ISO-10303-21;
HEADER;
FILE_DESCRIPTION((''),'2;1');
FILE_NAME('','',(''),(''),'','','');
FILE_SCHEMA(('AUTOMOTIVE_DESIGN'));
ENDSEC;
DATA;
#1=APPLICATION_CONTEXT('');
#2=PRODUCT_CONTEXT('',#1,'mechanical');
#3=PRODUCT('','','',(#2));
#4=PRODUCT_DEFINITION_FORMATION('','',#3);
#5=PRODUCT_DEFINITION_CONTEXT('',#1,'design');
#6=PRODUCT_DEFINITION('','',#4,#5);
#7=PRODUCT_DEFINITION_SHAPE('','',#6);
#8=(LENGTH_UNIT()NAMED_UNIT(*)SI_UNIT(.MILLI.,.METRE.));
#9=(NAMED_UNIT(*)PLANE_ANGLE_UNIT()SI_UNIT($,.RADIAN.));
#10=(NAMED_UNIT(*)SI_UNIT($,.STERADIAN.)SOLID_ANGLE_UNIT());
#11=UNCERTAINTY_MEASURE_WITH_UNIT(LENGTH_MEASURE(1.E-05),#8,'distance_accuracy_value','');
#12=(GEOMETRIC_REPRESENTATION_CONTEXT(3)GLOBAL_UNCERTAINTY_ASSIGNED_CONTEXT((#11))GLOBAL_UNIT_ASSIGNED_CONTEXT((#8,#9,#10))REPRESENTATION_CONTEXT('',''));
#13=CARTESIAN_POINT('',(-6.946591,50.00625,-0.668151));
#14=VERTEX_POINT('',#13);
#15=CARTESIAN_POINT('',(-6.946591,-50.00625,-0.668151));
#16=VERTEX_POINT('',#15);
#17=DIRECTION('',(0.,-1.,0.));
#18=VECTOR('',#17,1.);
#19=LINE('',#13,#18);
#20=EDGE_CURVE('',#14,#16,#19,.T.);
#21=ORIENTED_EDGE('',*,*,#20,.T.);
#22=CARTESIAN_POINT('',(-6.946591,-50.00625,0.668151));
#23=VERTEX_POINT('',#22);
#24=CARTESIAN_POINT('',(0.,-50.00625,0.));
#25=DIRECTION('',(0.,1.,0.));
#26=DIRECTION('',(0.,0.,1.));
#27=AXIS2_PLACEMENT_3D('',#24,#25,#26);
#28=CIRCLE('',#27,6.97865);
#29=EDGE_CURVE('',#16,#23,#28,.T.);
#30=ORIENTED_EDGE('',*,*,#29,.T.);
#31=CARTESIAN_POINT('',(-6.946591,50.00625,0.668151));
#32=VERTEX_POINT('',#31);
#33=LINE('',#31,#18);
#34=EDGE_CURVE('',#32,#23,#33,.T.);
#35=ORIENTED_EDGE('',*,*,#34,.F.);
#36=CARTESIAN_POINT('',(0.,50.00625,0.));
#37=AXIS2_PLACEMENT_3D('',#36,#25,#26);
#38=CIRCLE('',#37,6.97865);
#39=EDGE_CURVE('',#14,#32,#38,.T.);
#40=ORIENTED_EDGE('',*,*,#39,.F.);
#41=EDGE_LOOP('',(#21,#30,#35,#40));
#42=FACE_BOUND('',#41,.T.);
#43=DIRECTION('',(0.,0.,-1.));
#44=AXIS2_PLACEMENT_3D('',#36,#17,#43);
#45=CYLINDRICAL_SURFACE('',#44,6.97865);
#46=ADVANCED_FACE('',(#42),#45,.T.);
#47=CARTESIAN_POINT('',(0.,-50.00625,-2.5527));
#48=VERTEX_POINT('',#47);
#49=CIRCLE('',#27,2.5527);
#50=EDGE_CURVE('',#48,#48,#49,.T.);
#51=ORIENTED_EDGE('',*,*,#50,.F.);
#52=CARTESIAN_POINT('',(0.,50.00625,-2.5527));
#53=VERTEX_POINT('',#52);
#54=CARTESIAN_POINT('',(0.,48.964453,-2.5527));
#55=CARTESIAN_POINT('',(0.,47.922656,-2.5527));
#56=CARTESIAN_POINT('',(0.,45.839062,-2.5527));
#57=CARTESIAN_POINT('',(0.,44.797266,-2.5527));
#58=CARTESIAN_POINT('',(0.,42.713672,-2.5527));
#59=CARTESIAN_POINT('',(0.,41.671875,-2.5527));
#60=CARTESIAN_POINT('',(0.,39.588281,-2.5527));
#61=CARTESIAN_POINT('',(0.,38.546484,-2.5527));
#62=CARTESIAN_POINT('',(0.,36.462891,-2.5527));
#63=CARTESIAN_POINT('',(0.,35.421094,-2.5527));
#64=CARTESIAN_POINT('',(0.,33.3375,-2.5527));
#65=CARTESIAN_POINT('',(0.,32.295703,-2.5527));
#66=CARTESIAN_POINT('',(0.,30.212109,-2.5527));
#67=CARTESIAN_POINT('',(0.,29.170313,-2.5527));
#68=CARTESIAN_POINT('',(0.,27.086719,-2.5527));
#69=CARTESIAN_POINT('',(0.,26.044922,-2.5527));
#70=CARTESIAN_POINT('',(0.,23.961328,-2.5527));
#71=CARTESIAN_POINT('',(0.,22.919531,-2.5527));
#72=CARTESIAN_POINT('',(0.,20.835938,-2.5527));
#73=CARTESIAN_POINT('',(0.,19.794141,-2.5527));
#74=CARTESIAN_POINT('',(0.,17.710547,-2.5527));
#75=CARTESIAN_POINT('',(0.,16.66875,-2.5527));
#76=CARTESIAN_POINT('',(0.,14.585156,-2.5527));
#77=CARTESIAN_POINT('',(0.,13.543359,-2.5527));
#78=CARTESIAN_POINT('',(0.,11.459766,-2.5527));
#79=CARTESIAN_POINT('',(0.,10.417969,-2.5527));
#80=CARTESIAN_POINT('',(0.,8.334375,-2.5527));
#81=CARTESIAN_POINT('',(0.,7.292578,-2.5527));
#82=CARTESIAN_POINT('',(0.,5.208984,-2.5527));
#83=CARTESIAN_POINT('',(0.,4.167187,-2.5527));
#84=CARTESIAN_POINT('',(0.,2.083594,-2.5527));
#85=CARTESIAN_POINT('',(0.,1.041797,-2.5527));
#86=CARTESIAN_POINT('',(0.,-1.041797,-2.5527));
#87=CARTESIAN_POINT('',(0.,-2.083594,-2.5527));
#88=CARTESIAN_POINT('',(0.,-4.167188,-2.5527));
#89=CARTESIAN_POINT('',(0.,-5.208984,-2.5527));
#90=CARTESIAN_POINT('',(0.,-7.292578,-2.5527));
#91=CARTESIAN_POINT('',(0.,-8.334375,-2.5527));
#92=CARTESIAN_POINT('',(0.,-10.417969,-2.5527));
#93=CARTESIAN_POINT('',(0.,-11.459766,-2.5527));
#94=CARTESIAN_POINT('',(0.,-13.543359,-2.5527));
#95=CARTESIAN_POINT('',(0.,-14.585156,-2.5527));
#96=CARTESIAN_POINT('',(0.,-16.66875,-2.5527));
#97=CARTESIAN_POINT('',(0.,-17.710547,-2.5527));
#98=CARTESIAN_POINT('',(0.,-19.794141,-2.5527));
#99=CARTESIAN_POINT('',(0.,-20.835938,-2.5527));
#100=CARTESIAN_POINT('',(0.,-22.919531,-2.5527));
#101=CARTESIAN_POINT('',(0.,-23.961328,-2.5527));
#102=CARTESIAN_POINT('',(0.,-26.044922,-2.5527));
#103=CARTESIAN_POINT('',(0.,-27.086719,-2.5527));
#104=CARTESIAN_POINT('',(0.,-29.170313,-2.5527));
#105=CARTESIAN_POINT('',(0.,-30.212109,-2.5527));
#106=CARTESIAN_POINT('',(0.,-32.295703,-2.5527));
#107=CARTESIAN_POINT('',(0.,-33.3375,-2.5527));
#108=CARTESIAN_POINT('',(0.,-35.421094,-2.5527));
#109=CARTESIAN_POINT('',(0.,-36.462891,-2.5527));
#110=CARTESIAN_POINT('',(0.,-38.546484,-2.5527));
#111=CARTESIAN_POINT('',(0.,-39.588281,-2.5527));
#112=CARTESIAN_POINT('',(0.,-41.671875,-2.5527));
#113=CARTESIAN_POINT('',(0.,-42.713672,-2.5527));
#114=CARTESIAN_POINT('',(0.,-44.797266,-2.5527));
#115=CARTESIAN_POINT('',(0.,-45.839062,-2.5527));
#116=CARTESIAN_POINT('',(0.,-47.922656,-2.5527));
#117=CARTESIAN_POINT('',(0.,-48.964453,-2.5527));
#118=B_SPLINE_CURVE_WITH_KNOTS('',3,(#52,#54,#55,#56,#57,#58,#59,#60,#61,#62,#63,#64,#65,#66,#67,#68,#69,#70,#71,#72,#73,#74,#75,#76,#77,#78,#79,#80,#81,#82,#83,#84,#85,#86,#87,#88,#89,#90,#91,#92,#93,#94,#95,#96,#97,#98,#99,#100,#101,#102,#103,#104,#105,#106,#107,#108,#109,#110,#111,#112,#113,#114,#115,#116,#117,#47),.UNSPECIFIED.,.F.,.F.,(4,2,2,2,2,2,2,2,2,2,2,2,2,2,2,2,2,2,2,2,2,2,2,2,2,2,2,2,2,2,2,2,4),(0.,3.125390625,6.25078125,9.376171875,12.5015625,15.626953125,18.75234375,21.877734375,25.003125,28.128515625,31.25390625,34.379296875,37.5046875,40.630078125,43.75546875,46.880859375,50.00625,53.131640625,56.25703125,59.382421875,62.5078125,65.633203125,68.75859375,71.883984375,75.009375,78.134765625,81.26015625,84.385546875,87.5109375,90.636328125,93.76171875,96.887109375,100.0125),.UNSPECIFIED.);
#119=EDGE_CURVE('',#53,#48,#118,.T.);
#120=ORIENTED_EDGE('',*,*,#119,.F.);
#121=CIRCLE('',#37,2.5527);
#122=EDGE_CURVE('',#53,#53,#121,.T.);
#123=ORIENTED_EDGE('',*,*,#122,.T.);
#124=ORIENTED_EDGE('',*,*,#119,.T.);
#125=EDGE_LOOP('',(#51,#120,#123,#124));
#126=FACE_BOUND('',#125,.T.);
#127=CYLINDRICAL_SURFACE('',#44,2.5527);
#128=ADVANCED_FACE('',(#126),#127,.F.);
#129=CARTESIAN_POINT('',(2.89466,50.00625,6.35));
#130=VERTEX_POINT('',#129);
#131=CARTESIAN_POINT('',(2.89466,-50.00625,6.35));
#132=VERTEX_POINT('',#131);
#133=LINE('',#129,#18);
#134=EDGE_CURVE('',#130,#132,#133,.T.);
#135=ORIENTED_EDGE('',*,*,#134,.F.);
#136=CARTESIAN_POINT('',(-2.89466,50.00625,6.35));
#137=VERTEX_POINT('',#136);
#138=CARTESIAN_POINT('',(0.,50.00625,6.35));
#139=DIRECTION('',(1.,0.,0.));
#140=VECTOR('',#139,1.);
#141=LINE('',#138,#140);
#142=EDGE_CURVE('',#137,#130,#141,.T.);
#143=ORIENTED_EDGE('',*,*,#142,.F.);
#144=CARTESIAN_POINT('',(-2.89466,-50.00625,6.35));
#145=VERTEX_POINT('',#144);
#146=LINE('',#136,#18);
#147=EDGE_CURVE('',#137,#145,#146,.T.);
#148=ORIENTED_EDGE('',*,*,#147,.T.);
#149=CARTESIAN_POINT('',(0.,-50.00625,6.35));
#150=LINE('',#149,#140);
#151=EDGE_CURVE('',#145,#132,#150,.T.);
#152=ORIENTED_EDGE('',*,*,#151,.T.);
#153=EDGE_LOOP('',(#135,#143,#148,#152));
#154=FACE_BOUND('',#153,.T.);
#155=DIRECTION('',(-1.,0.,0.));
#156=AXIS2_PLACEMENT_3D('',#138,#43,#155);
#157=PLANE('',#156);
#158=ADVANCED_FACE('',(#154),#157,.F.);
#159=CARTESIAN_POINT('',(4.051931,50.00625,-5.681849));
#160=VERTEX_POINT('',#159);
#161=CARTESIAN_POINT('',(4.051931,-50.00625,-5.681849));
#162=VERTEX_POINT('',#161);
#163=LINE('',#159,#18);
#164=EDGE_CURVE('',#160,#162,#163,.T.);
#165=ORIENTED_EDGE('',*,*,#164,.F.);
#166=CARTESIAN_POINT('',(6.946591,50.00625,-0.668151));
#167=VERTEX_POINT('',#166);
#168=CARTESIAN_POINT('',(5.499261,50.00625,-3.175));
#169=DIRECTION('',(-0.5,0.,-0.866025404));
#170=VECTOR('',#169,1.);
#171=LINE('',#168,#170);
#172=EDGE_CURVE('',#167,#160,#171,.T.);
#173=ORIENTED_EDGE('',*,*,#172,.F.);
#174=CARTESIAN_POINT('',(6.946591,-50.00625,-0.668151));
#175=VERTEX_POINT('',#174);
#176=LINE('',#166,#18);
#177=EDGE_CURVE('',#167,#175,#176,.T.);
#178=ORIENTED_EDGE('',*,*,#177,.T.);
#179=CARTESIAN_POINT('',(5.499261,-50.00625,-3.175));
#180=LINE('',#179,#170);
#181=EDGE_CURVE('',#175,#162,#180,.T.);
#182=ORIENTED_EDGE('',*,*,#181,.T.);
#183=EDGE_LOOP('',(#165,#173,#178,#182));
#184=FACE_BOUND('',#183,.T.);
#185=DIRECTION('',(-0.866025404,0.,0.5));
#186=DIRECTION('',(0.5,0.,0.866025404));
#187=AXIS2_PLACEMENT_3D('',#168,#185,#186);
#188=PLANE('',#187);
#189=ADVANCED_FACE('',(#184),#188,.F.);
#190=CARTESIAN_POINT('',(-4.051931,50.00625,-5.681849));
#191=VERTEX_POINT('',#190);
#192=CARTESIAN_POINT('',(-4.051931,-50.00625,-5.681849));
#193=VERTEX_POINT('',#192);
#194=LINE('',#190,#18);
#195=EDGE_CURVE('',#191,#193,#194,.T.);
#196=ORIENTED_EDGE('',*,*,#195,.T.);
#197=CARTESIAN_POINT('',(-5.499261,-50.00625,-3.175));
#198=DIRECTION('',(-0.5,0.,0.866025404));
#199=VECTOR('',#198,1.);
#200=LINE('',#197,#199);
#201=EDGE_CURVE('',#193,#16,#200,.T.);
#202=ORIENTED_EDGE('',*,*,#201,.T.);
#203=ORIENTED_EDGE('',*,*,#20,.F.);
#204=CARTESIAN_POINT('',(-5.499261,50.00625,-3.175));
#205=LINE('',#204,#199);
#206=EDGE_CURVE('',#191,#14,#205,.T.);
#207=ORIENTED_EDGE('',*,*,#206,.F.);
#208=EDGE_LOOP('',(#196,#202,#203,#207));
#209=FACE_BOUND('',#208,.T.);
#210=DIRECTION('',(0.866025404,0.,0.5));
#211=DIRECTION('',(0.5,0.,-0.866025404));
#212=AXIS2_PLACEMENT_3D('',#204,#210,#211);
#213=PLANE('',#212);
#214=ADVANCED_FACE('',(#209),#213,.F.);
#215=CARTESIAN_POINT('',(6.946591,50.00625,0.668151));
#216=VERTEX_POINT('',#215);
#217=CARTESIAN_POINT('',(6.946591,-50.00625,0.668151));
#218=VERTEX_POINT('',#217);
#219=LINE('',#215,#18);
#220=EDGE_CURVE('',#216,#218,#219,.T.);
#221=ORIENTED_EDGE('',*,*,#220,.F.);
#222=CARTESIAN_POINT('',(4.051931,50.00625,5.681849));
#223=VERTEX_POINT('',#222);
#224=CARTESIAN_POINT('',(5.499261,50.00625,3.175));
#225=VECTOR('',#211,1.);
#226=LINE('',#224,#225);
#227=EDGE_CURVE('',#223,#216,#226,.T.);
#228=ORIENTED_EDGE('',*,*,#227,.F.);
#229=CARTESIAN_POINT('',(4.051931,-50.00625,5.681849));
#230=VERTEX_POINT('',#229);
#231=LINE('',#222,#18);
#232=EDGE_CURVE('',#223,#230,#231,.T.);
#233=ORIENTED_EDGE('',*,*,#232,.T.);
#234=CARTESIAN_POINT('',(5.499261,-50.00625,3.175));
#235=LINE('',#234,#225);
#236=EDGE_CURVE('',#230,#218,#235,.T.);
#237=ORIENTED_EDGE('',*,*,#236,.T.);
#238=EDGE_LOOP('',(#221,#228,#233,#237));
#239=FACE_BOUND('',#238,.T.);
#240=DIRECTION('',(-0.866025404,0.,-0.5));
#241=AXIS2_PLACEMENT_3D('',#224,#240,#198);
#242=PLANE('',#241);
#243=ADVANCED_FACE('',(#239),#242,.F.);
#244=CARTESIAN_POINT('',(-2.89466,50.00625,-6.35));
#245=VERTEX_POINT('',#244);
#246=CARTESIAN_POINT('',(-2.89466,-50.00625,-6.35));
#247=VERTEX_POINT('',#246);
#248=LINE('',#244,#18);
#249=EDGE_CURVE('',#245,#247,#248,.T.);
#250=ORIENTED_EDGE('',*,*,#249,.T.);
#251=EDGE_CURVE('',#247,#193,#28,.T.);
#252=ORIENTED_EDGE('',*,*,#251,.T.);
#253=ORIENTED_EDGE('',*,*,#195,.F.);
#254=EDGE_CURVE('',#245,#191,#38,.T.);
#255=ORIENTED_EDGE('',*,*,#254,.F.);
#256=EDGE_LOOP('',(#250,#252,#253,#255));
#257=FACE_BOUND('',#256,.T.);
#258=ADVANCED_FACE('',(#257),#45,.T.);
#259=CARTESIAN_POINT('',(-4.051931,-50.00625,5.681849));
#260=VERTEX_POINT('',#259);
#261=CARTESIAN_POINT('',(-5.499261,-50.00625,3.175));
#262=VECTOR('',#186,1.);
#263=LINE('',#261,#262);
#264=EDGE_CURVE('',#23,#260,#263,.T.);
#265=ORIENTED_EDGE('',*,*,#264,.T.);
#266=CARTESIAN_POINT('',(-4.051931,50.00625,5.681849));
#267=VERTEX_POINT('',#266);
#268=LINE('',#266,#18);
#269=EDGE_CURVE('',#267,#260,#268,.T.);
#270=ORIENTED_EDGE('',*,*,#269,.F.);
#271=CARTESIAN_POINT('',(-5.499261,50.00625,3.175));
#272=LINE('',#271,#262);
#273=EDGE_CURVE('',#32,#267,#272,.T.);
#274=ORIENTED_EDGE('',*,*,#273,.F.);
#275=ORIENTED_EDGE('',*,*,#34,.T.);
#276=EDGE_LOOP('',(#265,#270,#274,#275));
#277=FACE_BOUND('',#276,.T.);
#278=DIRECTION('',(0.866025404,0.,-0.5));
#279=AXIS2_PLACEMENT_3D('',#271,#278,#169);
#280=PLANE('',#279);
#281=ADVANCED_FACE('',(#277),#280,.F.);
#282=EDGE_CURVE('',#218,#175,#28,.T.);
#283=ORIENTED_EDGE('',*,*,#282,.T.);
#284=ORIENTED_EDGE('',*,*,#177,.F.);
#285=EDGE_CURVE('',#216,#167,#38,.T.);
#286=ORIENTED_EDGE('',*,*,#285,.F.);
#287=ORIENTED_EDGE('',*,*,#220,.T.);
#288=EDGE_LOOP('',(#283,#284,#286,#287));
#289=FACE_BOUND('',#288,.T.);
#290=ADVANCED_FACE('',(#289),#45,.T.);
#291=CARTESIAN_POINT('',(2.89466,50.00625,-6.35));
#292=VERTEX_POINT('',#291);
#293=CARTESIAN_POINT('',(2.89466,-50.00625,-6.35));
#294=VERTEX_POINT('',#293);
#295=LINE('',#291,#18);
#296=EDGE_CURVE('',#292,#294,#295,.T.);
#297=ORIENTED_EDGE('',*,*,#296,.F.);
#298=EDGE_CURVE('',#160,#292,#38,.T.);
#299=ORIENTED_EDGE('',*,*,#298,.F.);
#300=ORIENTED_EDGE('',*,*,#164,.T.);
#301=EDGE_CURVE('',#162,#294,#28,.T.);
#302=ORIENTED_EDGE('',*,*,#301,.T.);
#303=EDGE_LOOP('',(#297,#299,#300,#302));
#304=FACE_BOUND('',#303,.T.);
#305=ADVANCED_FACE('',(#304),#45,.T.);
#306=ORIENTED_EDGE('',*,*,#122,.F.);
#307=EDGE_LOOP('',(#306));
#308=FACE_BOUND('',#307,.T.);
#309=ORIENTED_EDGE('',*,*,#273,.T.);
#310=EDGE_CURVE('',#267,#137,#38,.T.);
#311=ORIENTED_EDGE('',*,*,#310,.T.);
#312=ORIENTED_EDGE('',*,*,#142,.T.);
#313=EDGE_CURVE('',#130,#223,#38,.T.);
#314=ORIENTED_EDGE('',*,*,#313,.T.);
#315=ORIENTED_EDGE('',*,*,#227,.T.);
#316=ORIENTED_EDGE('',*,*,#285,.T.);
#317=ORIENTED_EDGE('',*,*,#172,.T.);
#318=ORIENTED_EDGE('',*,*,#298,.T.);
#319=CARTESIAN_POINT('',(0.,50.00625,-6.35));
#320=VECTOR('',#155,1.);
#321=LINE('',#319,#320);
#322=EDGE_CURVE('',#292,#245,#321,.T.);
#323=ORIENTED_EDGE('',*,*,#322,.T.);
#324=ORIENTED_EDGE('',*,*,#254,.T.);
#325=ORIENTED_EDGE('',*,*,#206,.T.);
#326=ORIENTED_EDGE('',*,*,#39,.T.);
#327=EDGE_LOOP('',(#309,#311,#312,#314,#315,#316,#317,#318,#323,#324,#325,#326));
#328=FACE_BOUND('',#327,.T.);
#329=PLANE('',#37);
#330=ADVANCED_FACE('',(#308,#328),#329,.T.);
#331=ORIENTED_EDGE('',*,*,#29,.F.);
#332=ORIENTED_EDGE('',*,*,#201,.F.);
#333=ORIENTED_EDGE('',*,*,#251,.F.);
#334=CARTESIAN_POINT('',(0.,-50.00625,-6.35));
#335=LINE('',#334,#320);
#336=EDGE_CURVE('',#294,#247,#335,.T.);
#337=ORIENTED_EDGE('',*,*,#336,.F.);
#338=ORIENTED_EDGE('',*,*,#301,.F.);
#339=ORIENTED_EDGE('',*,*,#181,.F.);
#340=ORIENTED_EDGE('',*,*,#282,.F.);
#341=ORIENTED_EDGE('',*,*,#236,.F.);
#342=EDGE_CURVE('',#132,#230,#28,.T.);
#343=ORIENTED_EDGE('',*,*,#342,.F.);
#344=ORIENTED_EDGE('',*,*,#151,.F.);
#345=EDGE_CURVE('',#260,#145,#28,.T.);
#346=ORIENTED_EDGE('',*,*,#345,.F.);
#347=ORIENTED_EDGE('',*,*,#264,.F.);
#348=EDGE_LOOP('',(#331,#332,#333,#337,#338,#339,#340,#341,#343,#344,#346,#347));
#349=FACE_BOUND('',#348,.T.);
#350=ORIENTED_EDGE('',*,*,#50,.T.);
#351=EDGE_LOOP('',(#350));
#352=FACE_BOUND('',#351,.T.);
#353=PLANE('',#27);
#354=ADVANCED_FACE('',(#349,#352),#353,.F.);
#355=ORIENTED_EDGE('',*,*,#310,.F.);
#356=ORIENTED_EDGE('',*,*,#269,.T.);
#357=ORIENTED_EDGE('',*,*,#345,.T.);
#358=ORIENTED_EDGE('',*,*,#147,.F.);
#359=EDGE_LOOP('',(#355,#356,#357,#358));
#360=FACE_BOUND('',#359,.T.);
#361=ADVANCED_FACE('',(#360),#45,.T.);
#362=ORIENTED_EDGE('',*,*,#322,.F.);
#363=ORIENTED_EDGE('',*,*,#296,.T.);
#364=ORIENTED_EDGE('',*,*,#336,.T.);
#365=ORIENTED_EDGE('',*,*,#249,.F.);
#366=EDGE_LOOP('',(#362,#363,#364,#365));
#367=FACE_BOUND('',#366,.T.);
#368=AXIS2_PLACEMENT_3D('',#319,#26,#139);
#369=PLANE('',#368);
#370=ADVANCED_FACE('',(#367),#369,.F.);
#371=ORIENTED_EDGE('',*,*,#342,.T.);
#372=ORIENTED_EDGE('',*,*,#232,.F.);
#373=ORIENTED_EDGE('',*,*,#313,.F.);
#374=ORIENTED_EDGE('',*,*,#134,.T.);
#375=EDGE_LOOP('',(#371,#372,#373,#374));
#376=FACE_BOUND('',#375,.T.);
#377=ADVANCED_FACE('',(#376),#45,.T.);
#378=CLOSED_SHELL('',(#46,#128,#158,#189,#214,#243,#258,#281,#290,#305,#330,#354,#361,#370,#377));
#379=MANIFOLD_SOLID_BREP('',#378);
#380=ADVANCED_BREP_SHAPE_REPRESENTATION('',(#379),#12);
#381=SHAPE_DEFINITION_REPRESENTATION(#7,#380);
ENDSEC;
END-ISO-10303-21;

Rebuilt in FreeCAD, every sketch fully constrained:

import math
import FreeCAD as App
import Part
import Sketcher
from FreeCAD import Vector
Q = App.Units.Quantity

doc = App.newDocument("Part")
params = doc.addObject("Spreadsheet::Sheet", "Params")
for row, (alias, value) in enumerate([
    ("sketch1_diameter", "0.201 in"),
    ("pad1_length", "3.9375 in"),
], start=1):
    params.set(f"A{row}", alias)
    params.set(f"B{row}", "=" + value)
    params.setAlias(f"B{row}", alias)

body = doc.addObject("PartDesign::Body", "Body")

# Sketch on XZ plane
sketch1 = doc.addObject("Sketcher::SketchObject", "Sketch")
body.addObject(sketch1)
sketch1.AttachmentSupport = (doc.XZ_Plane, [""])
sketch1.MapMode = "FlatFace"
sketch1.addGeometry(Part.ArcOfCircle(Part.Circle(Vector(0, 0, 0), Vector(0, 0, 1), 7), math.radians(54.51), math.radians(65.49)), False)
sketch1.addGeometry(Part.LineSegment(Vector(4.1, 5.7, 0), Vector(6.9, 0.7, 0)), False)
sketch1.addGeometry(Part.ArcOfCircle(Part.Circle(Vector(0, 0, 0), Vector(0, 0, 1), 7), math.radians(0), math.radians(5.49)), False)
sketch1.addGeometry(Part.ArcOfCircle(Part.Circle(Vector(0, 0, 0), Vector(0, 0, 1), 7), math.radians(-5.49), math.radians(0)), False)
sketch1.addGeometry(Part.LineSegment(Vector(6.9, -0.7, 0), Vector(4.1, -5.7, 0)), False)
sketch1.addGeometry(Part.ArcOfCircle(Part.Circle(Vector(0, 0, 0), Vector(0, 0, 1), 7), math.radians(-65.49), math.radians(-54.51)), False)
sketch1.addGeometry(Part.LineSegment(Vector(2.9, -6.3, 0), Vector(-2.9, -6.3, 0)), False)
sketch1.addGeometry(Part.ArcOfCircle(Part.Circle(Vector(0, 0, 0), Vector(0, 0, 1), 7), math.radians(-125.49), math.radians(-114.51)), False)
sketch1.addGeometry(Part.LineSegment(Vector(-4.1, -5.7, 0), Vector(-6.9, -0.7, 0)), False)
sketch1.addGeometry(Part.ArcOfCircle(Part.Circle(Vector(0, 0, 0), Vector(0, 0, 1), 7), math.radians(174.51), math.radians(185.49)), False)
sketch1.addGeometry(Part.LineSegment(Vector(-6.9, 0.7, 0), Vector(-4.1, 5.7, 0)), False)
sketch1.addGeometry(Part.ArcOfCircle(Part.Circle(Vector(0, 0, 0), Vector(0, 0, 1), 7), math.radians(114.51), math.radians(125.49)), False)
sketch1.addGeometry(Part.LineSegment(Vector(-2.9, 6.3, 0), Vector(2.9, 6.3, 0)), False)
sketch1.addGeometry(Part.Circle(Vector(0, 0, 0), Vector(0, 0, 1), 2.6), False)
sketch1.addConstraint(Sketcher.Constraint("Coincident", 0, 1, 1, 1))
sketch1.addConstraint(Sketcher.Constraint("Coincident", 1, 2, 2, 2))
sketch1.addConstraint(Sketcher.Constraint("Tangent", 2, 1, 3, 2))
sketch1.addConstraint(Sketcher.Constraint("Coincident", 3, 1, 4, 1))
sketch1.addConstraint(Sketcher.Constraint("Coincident", 4, 2, 5, 2))
sketch1.addConstraint(Sketcher.Constraint("Coincident", 5, 1, 6, 1))
sketch1.addConstraint(Sketcher.Constraint("Coincident", 6, 2, 7, 2))
sketch1.addConstraint(Sketcher.Constraint("Coincident", 7, 1, 8, 1))
sketch1.addConstraint(Sketcher.Constraint("Coincident", 8, 2, 9, 2))
sketch1.addConstraint(Sketcher.Constraint("Coincident", 9, 1, 10, 1))
sketch1.addConstraint(Sketcher.Constraint("Coincident", 10, 2, 11, 2))
sketch1.addConstraint(Sketcher.Constraint("Coincident", 11, 1, 12, 1))
sketch1.addConstraint(Sketcher.Constraint("Coincident", 12, 2, 0, 2))
sketch1.addConstraint(Sketcher.Constraint("Horizontal", 6))
sketch1.addConstraint(Sketcher.Constraint("Horizontal", 12))
sketch1.addConstraint(Sketcher.Constraint("Coincident", 0, 3, -1, 1))
sketch1.addConstraint(Sketcher.Constraint("Coincident", 2, 3, -1, 1))
sketch1.addConstraint(Sketcher.Constraint("Coincident", 5, 3, -1, 1))
sketch1.addConstraint(Sketcher.Constraint("Coincident", 7, 3, -1, 1))
sketch1.addConstraint(Sketcher.Constraint("Coincident", 9, 3, -1, 1))
sketch1.addConstraint(Sketcher.Constraint("Coincident", 11, 3, -1, 1))
sketch1.addConstraint(Sketcher.Constraint("Coincident", 13, 3, -1, 1))
sketch1.addConstraint(Sketcher.Constraint("Equal", 0, 2))
sketch1.addConstraint(Sketcher.Constraint("Equal", 2, 3))
sketch1.addConstraint(Sketcher.Constraint("Equal", 3, 5))
sketch1.addConstraint(Sketcher.Constraint("Equal", 5, 7))
sketch1.addConstraint(Sketcher.Constraint("Equal", 7, 9))
sketch1.addConstraint(Sketcher.Constraint("Equal", 9, 11))
sketch1.addConstraint(Sketcher.Constraint("PointOnObject", 2, 1, -1))
sketch1.addConstraint(Sketcher.Constraint("Parallel", 1, 8))
sketch1.addConstraint(Sketcher.Constraint("Parallel", 4, 10))
sketch1.addConstraint(Sketcher.Constraint("Horizontal", 4, 2, 7, 1))
sketch1.addConstraint(Sketcher.Constraint("Horizontal", 3, 1, 8, 2))
sketch1.addConstraint(Sketcher.Constraint("Horizontal", 1, 2, 9, 1))
sketch1.addConstraint(Sketcher.Constraint("Vertical", 1, 2, 3, 1))
sketch1.addConstraint(Sketcher.Constraint("Vertical", 6, 2, 11, 1))
sketch1.addConstraint(Sketcher.Constraint("Diameter", 13, Q("0.201 in")))
sketch1.addConstraint(Sketcher.Constraint("Angle", 1, Q("-60 deg")))
sketch1.addConstraint(Sketcher.Constraint("DistanceY", 5, 1, -1, 1, Q("0.25 in")))
sketch1.addConstraint(Sketcher.Constraint("DistanceY", 8, 2, 10, 2, Q("0.25 in")))
sketch1.addConstraint(Sketcher.Constraint("Radius", 0, Q("6.97865 mm")))
sketch1.setExpression("Constraints[36]", "Params.sketch1_diameter")
pad1 = doc.addObject("PartDesign::Pad", "Pad")
body.addObject(pad1)
pad1.Profile = sketch1
pad1.setExpression("Length", "Params.pad1_length")
pad1.Midplane = True

doc.recompute()
